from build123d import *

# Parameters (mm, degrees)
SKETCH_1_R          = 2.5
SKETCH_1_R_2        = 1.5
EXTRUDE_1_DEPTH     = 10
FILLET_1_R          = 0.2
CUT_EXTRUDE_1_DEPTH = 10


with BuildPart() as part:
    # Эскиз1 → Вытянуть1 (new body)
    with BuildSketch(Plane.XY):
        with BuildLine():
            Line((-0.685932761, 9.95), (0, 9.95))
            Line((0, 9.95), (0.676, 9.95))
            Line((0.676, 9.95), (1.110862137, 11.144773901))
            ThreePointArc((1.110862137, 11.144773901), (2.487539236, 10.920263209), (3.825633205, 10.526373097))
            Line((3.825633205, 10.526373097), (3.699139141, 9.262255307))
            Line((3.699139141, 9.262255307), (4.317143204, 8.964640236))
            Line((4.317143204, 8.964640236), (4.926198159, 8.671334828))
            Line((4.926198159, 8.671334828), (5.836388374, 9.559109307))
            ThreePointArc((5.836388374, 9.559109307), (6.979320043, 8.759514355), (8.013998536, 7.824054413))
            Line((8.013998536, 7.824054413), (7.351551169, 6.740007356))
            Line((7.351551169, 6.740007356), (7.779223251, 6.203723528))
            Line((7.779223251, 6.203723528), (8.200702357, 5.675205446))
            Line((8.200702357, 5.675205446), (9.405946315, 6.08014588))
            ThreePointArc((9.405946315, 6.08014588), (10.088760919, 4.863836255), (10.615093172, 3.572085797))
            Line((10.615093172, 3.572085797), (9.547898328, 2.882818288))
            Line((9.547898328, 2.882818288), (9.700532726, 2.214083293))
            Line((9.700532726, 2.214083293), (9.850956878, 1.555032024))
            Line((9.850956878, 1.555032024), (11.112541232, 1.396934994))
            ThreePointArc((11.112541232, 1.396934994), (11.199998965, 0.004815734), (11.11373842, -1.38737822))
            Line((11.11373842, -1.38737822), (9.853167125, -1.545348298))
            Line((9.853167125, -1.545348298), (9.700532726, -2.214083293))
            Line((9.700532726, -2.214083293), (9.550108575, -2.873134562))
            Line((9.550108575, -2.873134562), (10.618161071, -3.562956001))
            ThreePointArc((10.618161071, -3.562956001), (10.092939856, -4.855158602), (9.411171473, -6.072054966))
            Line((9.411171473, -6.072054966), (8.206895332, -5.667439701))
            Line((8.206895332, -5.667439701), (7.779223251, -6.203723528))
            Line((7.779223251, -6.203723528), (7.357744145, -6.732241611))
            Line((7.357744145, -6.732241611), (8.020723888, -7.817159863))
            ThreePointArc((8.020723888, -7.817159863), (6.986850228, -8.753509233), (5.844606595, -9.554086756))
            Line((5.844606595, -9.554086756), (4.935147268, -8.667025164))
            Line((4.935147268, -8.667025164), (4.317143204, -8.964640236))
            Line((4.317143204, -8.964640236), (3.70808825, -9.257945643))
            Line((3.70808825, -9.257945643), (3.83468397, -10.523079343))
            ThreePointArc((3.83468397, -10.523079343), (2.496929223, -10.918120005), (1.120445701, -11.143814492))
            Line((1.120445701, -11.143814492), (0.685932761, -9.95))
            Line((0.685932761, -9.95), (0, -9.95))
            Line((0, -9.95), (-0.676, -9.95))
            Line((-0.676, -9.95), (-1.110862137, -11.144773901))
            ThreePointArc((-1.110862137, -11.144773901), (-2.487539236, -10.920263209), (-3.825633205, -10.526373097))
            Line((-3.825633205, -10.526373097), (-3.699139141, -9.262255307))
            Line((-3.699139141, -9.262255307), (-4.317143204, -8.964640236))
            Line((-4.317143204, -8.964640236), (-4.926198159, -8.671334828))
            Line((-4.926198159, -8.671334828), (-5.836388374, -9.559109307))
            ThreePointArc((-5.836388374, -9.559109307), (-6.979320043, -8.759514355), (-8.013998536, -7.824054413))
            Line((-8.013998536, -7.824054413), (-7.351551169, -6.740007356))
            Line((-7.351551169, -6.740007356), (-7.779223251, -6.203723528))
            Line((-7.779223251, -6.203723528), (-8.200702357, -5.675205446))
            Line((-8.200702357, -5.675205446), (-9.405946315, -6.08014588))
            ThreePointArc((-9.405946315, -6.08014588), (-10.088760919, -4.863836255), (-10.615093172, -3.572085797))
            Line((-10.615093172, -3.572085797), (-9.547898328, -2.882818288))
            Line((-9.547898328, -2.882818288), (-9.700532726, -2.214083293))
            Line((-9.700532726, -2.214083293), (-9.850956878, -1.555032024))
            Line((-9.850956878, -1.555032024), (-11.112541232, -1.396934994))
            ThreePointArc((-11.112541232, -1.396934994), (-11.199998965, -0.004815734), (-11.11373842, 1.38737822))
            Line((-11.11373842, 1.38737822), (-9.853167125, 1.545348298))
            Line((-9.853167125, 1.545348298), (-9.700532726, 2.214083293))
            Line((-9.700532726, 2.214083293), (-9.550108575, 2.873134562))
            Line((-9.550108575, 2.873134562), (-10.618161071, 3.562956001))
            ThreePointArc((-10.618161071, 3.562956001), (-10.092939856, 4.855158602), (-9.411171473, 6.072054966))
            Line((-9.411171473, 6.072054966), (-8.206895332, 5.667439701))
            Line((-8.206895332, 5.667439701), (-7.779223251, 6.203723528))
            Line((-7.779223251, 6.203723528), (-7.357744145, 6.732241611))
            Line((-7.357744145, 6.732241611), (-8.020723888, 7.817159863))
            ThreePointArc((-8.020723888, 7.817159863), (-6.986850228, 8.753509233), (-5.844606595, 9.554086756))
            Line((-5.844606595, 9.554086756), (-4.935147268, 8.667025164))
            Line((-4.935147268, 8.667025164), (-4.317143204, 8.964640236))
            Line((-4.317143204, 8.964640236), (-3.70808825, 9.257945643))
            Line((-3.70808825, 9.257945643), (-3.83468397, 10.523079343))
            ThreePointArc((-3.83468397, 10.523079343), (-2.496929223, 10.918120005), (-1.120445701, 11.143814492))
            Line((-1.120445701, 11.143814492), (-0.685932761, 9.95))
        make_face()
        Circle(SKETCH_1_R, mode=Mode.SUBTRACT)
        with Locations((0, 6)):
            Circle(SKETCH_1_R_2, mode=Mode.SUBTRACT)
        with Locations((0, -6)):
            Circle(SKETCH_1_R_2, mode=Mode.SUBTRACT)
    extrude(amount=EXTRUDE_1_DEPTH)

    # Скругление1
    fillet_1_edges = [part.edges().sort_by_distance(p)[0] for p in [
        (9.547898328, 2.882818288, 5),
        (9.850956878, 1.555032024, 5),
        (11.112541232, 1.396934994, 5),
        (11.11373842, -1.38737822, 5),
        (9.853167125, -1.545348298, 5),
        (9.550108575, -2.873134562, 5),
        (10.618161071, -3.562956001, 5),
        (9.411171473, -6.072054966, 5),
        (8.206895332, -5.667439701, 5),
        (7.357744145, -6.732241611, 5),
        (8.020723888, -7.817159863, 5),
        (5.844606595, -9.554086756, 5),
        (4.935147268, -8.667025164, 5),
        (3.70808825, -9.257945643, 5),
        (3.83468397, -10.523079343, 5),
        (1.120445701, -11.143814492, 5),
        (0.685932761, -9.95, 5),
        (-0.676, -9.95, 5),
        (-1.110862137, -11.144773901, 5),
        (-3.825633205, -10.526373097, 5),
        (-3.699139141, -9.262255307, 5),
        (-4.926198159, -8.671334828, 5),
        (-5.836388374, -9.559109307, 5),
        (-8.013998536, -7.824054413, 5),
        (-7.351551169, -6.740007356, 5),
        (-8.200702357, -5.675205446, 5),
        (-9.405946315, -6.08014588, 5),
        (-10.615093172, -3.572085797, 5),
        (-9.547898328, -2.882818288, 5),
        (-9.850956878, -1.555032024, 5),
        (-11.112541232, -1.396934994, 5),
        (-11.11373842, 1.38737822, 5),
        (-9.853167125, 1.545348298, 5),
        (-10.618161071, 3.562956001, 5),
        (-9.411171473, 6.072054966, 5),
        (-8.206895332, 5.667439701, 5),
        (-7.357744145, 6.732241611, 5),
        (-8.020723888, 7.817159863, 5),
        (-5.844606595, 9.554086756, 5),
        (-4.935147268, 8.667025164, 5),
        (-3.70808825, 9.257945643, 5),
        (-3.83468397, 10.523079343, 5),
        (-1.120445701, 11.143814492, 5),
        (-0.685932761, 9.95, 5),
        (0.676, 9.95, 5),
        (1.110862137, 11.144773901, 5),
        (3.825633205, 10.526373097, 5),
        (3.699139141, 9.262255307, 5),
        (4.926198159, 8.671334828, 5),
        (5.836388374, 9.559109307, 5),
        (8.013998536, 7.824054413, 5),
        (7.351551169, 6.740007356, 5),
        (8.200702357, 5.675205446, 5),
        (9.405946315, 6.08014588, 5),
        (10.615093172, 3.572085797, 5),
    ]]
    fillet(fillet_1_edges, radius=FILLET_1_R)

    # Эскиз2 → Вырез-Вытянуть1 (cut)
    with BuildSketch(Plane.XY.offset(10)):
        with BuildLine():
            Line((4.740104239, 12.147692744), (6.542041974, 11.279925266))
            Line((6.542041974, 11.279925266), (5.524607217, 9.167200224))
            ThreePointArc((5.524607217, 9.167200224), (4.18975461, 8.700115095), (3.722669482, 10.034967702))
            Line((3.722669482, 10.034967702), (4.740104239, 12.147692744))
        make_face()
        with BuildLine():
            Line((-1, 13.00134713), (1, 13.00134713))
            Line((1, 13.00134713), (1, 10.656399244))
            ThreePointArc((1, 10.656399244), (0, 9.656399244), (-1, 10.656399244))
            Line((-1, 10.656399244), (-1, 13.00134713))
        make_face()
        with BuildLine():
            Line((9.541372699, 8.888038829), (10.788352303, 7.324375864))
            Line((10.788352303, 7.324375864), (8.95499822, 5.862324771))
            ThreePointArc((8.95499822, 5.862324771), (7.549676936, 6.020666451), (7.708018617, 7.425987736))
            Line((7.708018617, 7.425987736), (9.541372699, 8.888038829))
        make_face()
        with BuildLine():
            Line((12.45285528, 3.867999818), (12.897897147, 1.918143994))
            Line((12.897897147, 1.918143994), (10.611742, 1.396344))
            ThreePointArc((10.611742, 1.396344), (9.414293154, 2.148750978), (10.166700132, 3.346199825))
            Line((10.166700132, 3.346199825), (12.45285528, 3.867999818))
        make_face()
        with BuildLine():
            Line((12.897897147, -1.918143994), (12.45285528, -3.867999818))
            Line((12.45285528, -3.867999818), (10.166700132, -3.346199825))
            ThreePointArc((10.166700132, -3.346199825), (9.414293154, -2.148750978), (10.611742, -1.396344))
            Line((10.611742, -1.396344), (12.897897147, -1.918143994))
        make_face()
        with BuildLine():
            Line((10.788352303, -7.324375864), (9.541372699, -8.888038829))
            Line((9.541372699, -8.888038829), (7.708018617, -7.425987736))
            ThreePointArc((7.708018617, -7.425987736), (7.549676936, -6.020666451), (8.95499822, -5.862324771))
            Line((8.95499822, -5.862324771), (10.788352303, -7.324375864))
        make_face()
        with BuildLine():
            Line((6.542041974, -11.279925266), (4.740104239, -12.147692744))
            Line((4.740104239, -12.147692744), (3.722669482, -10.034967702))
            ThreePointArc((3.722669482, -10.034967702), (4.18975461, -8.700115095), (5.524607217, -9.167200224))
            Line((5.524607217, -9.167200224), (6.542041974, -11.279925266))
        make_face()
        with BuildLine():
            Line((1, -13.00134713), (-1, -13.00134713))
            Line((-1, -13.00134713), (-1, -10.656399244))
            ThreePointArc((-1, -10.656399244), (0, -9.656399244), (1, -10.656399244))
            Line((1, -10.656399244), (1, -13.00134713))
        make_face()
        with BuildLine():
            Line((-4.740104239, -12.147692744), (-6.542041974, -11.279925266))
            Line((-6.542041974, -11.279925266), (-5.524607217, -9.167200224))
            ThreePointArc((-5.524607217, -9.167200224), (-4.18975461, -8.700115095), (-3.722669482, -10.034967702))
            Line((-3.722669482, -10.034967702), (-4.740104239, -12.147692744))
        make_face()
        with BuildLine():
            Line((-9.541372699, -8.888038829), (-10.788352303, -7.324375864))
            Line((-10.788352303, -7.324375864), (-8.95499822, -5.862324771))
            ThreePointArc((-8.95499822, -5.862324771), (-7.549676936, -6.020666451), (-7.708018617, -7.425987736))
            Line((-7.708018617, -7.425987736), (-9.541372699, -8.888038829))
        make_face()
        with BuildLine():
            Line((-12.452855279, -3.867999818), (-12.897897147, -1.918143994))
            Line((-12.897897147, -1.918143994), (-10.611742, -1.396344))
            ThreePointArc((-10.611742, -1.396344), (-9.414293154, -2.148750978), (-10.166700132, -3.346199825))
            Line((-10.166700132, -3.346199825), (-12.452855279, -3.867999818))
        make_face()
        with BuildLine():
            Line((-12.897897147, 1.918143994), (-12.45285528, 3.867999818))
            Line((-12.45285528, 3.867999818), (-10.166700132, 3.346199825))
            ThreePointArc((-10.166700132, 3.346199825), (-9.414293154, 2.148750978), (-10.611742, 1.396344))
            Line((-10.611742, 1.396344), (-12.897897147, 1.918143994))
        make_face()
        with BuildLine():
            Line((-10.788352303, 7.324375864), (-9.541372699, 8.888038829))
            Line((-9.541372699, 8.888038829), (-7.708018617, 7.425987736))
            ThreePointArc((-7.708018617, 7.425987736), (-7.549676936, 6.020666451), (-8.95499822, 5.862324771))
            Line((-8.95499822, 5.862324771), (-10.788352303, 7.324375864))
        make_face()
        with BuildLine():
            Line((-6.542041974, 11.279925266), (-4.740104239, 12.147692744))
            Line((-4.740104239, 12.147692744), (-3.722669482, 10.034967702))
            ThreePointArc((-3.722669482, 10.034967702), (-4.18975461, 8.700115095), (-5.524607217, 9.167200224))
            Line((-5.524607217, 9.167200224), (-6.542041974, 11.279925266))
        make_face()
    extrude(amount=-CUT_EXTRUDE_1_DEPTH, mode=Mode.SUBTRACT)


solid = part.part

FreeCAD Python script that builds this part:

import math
import FreeCAD as App
import Part
import Sketcher
from FreeCAD import Vector
Q = App.Units.Quantity


def edges_at(feature, points):
    """Names of the edges that pass closest to the given points."""
    edges = feature.Shape.Edges
    near = lambda p: min(range(len(edges)), key=lambda i: edges[i].distToShape(Part.Vertex(*p))[0])
    return sorted({f"Edge{near(p) + 1}" for p in points})

doc = App.newDocument("Part")
body = doc.addObject("PartDesign::Body", "Body")

# Sketch on XY plane
sketch1 = doc.addObject("Sketcher::SketchObject", "Sketch")
body.addObject(sketch1)
sketch1.AttachmentSupport = (doc.XY_Plane, [""])
sketch1.MapMode = "FlatFace"
sketch1.addGeometry(Part.LineSegment(Vector(0.676, 9.95, 0), Vector(-0.685933, 9.95, 0)), False)
sketch1.addGeometry(Part.LineSegment(Vector(-0.685933, 9.95, 0), Vector(-1.120446, 11.143814, 0)), False)
sketch1.addGeometry(Part.ArcOfCircle(Part.Circle(Vector(0, 0, 0), Vector(0, 0, 1), 11.2), math.radians(95.741462), math.radians(110.022095)), False)
sketch1.addGeometry(Part.LineSegment(Vector(-3.834684, 10.523079, 0), Vector(-3.708088, 9.257946, 0)), False)
sketch1.addGeometry(Part.LineSegment(Vector(-3.708088, 9.257946, 0), Vector(-4.317143, 8.96464, 0)), False)
sketch1.addGeometry(Part.LineSegment(Vector(-4.317143, 8.96464, 0), Vector(-4.935147, 8.667025, 0)), False)
sketch1.addGeometry(Part.LineSegment(Vector(-4.935147, 8.667025, 0), Vector(-5.844607, 9.554087, 0)), False)
sketch1.addGeometry(Part.ArcOfCircle(Part.Circle(Vector(0, 0, 0), Vector(0, 0, 1), 11.2), math.radians(121.455748), math.radians(135.736381)), False)
sketch1.addGeometry(Part.LineSegment(Vector(-8.020724, 7.81716, 0), Vector(-7.357744, 6.732242, 0)), False)
sketch1.addGeometry(Part.LineSegment(Vector(-7.357744, 6.732242, 0), Vector(-7.779223, 6.203724, 0)), False)
sketch1.addGeometry(Part.LineSegment(Vector(-7.779223, 6.203724, 0), Vector(-8.206895, 5.66744, 0)), False)
sketch1.addGeometry(Part.LineSegment(Vector(-8.206895, 5.66744, 0), Vector(-9.411171, 6.072055, 0)), False)
sketch1.addGeometry(Part.ArcOfCircle(Part.Circle(Vector(0, 0, 0), Vector(0, 0, 1), 11.2), math.radians(147.170034), math.radians(161.450667)), False)
sketch1.addGeometry(Part.LineSegment(Vector(-10.618161, 3.562956, 0), Vector(-9.550109, 2.873135, 0)), False)
sketch1.addGeometry(Part.LineSegment(Vector(-9.550109, 2.873135, 0), Vector(-9.700533, 2.214083, 0)), False)
sketch1.addGeometry(Part.LineSegment(Vector(-9.700533, 2.214083, 0), Vector(-9.853167, 1.545348, 0)), False)
sketch1.addGeometry(Part.LineSegment(Vector(-9.853167, 1.545348, 0), Vector(-11.113738, 1.387378, 0)), False)
sketch1.addGeometry(Part.ArcOfCircle(Part.Circle(Vector(0, 0, 0), Vector(0, 0, 1), 11.2), math.radians(172.884319), math.radians(187.164952)), False)
sketch1.addGeometry(Part.LineSegment(Vector(-11.112541, -1.396935, 0), Vector(-9.850957, -1.555032, 0)), False)
sketch1.addGeometry(Part.LineSegment(Vector(-9.850957, -1.555032, 0), Vector(-9.700533, -2.214083, 0)), False)
sketch1.addGeometry(Part.LineSegment(Vector(-9.700533, -2.214083, 0), Vector(-9.547898, -2.882818, 0)), False)
sketch1.addGeometry(Part.LineSegment(Vector(-9.547898, -2.882818, 0), Vector(-10.615093, -3.572086, 0)), False)
sketch1.addGeometry(Part.ArcOfCircle(Part.Circle(Vector(0, 0, 0), Vector(0, 0, 1), 11.2), math.radians(-161.401395), math.radians(-147.120762)), False)
sketch1.addGeometry(Part.LineSegment(Vector(-9.405946, -6.080146, 0), Vector(-8.200702, -5.675205, 0)), False)
sketch1.addGeometry(Part.LineSegment(Vector(-8.200702, -5.675205, 0), Vector(-7.779223, -6.203724, 0)), False)
sketch1.addGeometry(Part.LineSegment(Vector(-7.779223, -6.203724, 0), Vector(-7.351551, -6.740007, 0)), False)
sketch1.addGeometry(Part.LineSegment(Vector(-7.351551, -6.740007, 0), Vector(-8.013999, -7.824054, 0)), False)
sketch1.addGeometry(Part.ArcOfCircle(Part.Circle(Vector(0, 0, 0), Vector(0, 0, 1), 11.2), math.radians(-135.687109), math.radians(-121.406476)), False)
sketch1.addGeometry(Part.LineSegment(Vector(-5.836388, -9.559109, 0), Vector(-4.926198, -8.671335, 0)), False)
sketch1.addGeometry(Part.LineSegment(Vector(-4.926198, -8.671335, 0), Vector(-4.317143, -8.96464, 0)), False)
sketch1.addGeometry(Part.LineSegment(Vector(-4.317143, -8.96464, 0), Vector(-3.699139, -9.262255, 0)), False)
sketch1.addGeometry(Part.LineSegment(Vector(-3.699139, -9.262255, 0), Vector(-3.825633, -10.526373, 0)), False)
sketch1.addGeometry(Part.ArcOfCircle(Part.Circle(Vector(0, 0, 0), Vector(0, 0, 1), 11.2), math.radians(-109.972824), math.radians(-95.69219)), False)
sketch1.addGeometry(Part.LineSegment(Vector(-1.110862, -11.144774, 0), Vector(-0.676, -9.95, 0)), False)
sketch1.addGeometry(Part.LineSegment(Vector(-0.676, -9.95, 0), Vector(0.685933, -9.95, 0)), False)
sketch1.addGeometry(Part.LineSegment(Vector(0.685933, -9.95, 0), Vector(1.120446, -11.143814, 0)), False)
sketch1.addGeometry(Part.ArcOfCircle(Part.Circle(Vector(0, 0, 0), Vector(0, 0, 1), 11.2), math.radians(-84.258538), math.radians(-69.977905)), False)
sketch1.addGeometry(Part.LineSegment(Vector(3.834684, -10.523079, 0), Vector(3.708088, -9.257946, 0)), False)
sketch1.addGeometry(Part.LineSegment(Vector(3.708088, -9.257946, 0), Vector(4.317143, -8.96464, 0)), False)
sketch1.addGeometry(Part.LineSegment(Vector(4.317143, -8.96464, 0), Vector(4.935147, -8.667025, 0)), False)
sketch1.addGeometry(Part.LineSegment(Vector(4.935147, -8.667025, 0), Vector(5.844607, -9.554087, 0)), False)
sketch1.addGeometry(Part.ArcOfCircle(Part.Circle(Vector(0, 0, 0), Vector(0, 0, 1), 11.2), math.radians(-58.544252), math.radians(-44.263619)), False)
sketch1.addGeometry(Part.LineSegment(Vector(8.020724, -7.81716, 0), Vector(7.357744, -6.732242, 0)), False)
sketch1.addGeometry(Part.LineSegment(Vector(7.357744, -6.732242, 0), Vector(7.779223, -6.203724, 0)), False)
sketch1.addGeometry(Part.LineSegment(Vector(7.779223, -6.203724, 0), Vector(8.206895, -5.66744, 0)), False)
sketch1.addGeometry(Part.LineSegment(Vector(8.206895, -5.66744, 0), Vector(9.411171, -6.072055, 0)), False)
sketch1.addGeometry(Part.ArcOfCircle(Part.Circle(Vector(0, 0, 0), Vector(0, 0, 1), 11.2), math.radians(-32.829966), math.radians(-18.549333)), False)
sketch1.addGeometry(Part.LineSegment(Vector(10.618161, -3.562956, 0), Vector(9.550109, -2.873135, 0)), False)
sketch1.addGeometry(Part.LineSegment(Vector(9.550109, -2.873135, 0), Vector(9.700533, -2.214083, 0)), False)
sketch1.addGeometry(Part.LineSegment(Vector(9.700533, -2.214083, 0), Vector(9.853167, -1.545348, 0)), False)
sketch1.addGeometry(Part.LineSegment(Vector(9.853167, -1.545348, 0), Vector(11.113738, -1.387378, 0)), False)
sketch1.addGeometry(Part.ArcOfCircle(Part.Circle(Vector(0, 0, 0), Vector(0, 0, 1), 11.2), math.radians(-7.115681), math.radians(7.164952)), False)
sketch1.addGeometry(Part.LineSegment(Vector(11.112541, 1.396935, 0), Vector(9.850957, 1.555032, 0)), False)
sketch1.addGeometry(Part.LineSegment(Vector(9.850957, 1.555032, 0), Vector(9.700533, 2.214083, 0)), False)
sketch1.addGeometry(Part.LineSegment(Vector(9.700533, 2.214083, 0), Vector(9.547898, 2.882818, 0)), False)
sketch1.addGeometry(Part.LineSegment(Vector(9.547898, 2.882818, 0), Vector(10.615093, 3.572086, 0)), False)
sketch1.addGeometry(Part.ArcOfCircle(Part.Circle(Vector(0, 0, 0), Vector(0, 0, 1), 11.2), math.radians(18.598605), math.radians(32.879238)), False)
sketch1.addGeometry(Part.LineSegment(Vector(9.405946, 6.080146, 0), Vector(8.200702, 5.675205, 0)), False)
sketch1.addGeometry(Part.LineSegment(Vector(8.200702, 5.675205, 0), Vector(7.779223, 6.203724, 0)), False)
sketch1.addGeometry(Part.LineSegment(Vector(7.779223, 6.203724, 0), Vector(7.351551, 6.740007, 0)), False)
sketch1.addGeometry(Part.LineSegment(Vector(7.351551, 6.740007, 0), Vector(8.013999, 7.824054, 0)), False)
sketch1.addGeometry(Part.ArcOfCircle(Part.Circle(Vector(0, 0, 0), Vector(0, 0, 1), 11.2), math.radians(44.312891), math.radians(58.593524)), False)
sketch1.addGeometry(Part.LineSegment(Vector(5.836388, 9.559109, 0), Vector(4.926198, 8.671335, 0)), False)
sketch1.addGeometry(Part.LineSegment(Vector(4.926198, 8.671335, 0), Vector(4.317143, 8.96464, 0)), False)
sketch1.addGeometry(Part.LineSegment(Vector(4.317143, 8.96464, 0), Vector(3.699139, 9.262255, 0)), False)
sketch1.addGeometry(Part.LineSegment(Vector(3.699139, 9.262255, 0), Vector(3.825633, 10.526373, 0)), False)
sketch1.addGeometry(Part.ArcOfCircle(Part.Circle(Vector(0, 0, 0), Vector(0, 0, 1), 11.2), math.radians(70.027176), math.radians(84.30781)), False)
sketch1.addGeometry(Part.LineSegment(Vector(1.110862, 11.144774, 0), Vector(0.676, 9.95, 0)), False)
sketch1.addGeometry(Part.Circle(Vector(0, -6, 0), Vector(0, 0, 1), 1.5), False)
sketch1.addGeometry(Part.Circle(Vector(0, 0, 0), Vector(0, 0, 1), 2.5), False)
sketch1.addGeometry(Part.Circle(Vector(0, 6, 0), Vector(0, 0, 1), 1.5), False)
sketch1.addConstraint(Sketcher.Constraint("Coincident", 0, 2, 1, 1))
sketch1.addConstraint(Sketcher.Constraint("Coincident", 1, 2, 2, 1))
sketch1.addConstraint(Sketcher.Constraint("Coincident", 2, 2, 3, 1))
sketch1.addConstraint(Sketcher.Constraint("Coincident", 3, 2, 4, 1))
sketch1.addConstraint(Sketcher.Constraint("Coincident", 4, 2, 5, 1))
sketch1.addConstraint(Sketcher.Constraint("Coincident", 5, 2, 6, 1))
sketch1.addConstraint(Sketcher.Constraint("Coincident", 6, 2, 7, 1))
sketch1.addConstraint(Sketcher.Constraint("Coincident", 7, 2, 8, 1))
sketch1.addConstraint(Sketcher.Constraint("Coincident", 8, 2, 9, 1))
sketch1.addConstraint(Sketcher.Constraint("Coincident", 9, 2, 10, 1))
sketch1.addConstraint(Sketcher.Constraint("Coincident", 10, 2, 11, 1))
sketch1.addConstraint(Sketcher.Constraint("Coincident", 11, 2, 12, 1))
sketch1.addConstraint(Sketcher.Constraint("Coincident", 12, 2, 13, 1))
sketch1.addConstraint(Sketcher.Constraint("Coincident", 13, 2, 14, 1))
sketch1.addConstraint(Sketcher.Constraint("Coincident", 14, 2, 15, 1))
sketch1.addConstraint(Sketcher.Constraint("Coincident", 15, 2, 16, 1))
sketch1.addConstraint(Sketcher.Constraint("Coincident", 16, 2, 17, 1))
sketch1.addConstraint(Sketcher.Constraint("Coincident", 17, 2, 18, 1))
sketch1.addConstraint(Sketcher.Constraint("Coincident", 18, 2, 19, 1))
sketch1.addConstraint(Sketcher.Constraint("Coincident", 19, 2, 20, 1))
sketch1.addConstraint(Sketcher.Constraint("Coincident", 20, 2, 21, 1))
sketch1.addConstraint(Sketcher.Constraint("Coincident", 21, 2, 22, 1))
sketch1.addConstraint(Sketcher.Constraint("Coincident", 22, 2, 23, 1))
sketch1.addConstraint(Sketcher.Constraint("Coincident", 23, 2, 24, 1))
sketch1.addConstraint(Sketcher.Constraint("Coincident", 24, 2, 25, 1))
sketch1.addConstraint(Sketcher.Constraint("Coincident", 25, 2, 26, 1))
sketch1.addConstraint(Sketcher.Constraint("Coincident", 26, 2, 27, 1))
sketch1.addConstraint(Sketcher.Constraint("Coincident", 27, 2, 28, 1))
sketch1.addConstraint(Sketcher.Constraint("Coincident", 28, 2, 29, 1))
sketch1.addConstraint(Sketcher.Constraint("Coincident", 29, 2, 30, 1))
sketch1.addConstraint(Sketcher.Constraint("Coincident", 30, 2, 31, 1))
sketch1.addConstraint(Sketcher.Constraint("Coincident", 31, 2, 32, 1))
sketch1.addConstraint(Sketcher.Constraint("Coincident", 32, 2, 33, 1))
sketch1.addConstraint(Sketcher.Constraint("Coincident", 33, 2, 34, 1))
sketch1.addConstraint(Sketcher.Constraint("Coincident", 34, 2, 35, 1))
sketch1.addConstraint(Sketcher.Constraint("Coincident", 35, 2, 36, 1))
sketch1.addConstraint(Sketcher.Constraint("Coincident", 36, 2, 37, 1))
sketch1.addConstraint(Sketcher.Constraint("Coincident", 37, 2, 38, 1))
sketch1.addConstraint(Sketcher.Constraint("Coincident", 38, 2, 39, 1))
sketch1.addConstraint(Sketcher.Constraint("Coincident", 39, 2, 40, 1))
sketch1.addConstraint(Sketcher.Constraint("Coincident", 40, 2, 41, 1))
sketch1.addConstraint(Sketcher.Constraint("Coincident", 41, 2, 42, 1))
sketch1.addConstraint(Sketcher.Constraint("Coincident", 42, 2, 43, 1))
sketch1.addConstraint(Sketcher.Constraint("Coincident", 43, 2, 44, 1))
sketch1.addConstraint(Sketcher.Constraint("Coincident", 44, 2, 45, 1))
sketch1.addConstraint(Sketcher.Constraint("Coincident", 45, 2, 46, 1))
sketch1.addConstraint(Sketcher.Constraint("Coincident", 46, 2, 47, 1))
sketch1.addConstraint(Sketcher.Constraint("Coincident", 47, 2, 48, 1))
sketch1.addConstraint(Sketcher.Constraint("Coincident", 48, 2, 49, 1))
sketch1.addConstraint(Sketcher.Constraint("Coincident", 49, 2, 50, 1))
sketch1.addConstraint(Sketcher.Constraint("Coincident", 50, 2, 51, 1))
sketch1.addConstraint(Sketcher.Constraint("Coincident", 51, 2, 52, 1))
sketch1.addConstraint(Sketcher.Constraint("Coincident", 52, 2, 53, 1))
sketch1.addConstraint(Sketcher.Constraint("Coincident", 53, 2, 54, 1))
sketch1.addConstraint(Sketcher.Constraint("Coincident", 54, 2, 55, 1))
sketch1.addConstraint(Sketcher.Constraint("Coincident", 55, 2, 56, 1))
sketch1.addConstraint(Sketcher.Constraint("Coincident", 56, 2, 57, 1))
sketch1.addConstraint(Sketcher.Constraint("Coincident", 57, 2, 58, 1))
sketch1.addConstraint(Sketcher.Constraint("Coincident", 58, 2, 59, 1))
sketch1.addConstraint(Sketcher.Constraint("Coincident", 59, 2, 60, 1))
sketch1.addConstraint(Sketcher.Constraint("Coincident", 60, 2, 61, 1))
sketch1.addConstraint(Sketcher.Constraint("Coincident", 61, 2, 62, 1))
sketch1.addConstraint(Sketcher.Constraint("Coincident", 62, 2, 63, 1))
sketch1.addConstraint(Sketcher.Constraint("Coincident", 63, 2, 64, 1))
sketch1.addConstraint(Sketcher.Constraint("Coincident", 64, 2, 65, 1))
sketch1.addConstraint(Sketcher.Constraint("Coincident", 65, 2, 66, 1))
sketch1.addConstraint(Sketcher.Constraint("Coincident", 66, 2, 67, 1))
sketch1.addConstraint(Sketcher.Constraint("Coincident", 67, 2, 0, 1))
sketch1.addConstraint(Sketcher.Constraint("Horizontal", 0))
sketch1.addConstraint(Sketcher.Constraint("Horizontal", 34))
sketch1.addConstraint(Sketcher.Constraint("Coincident", 2, 3, -1, 1))
sketch1.addConstraint(Sketcher.Constraint("Coincident", 7, 3, -1, 1))
sketch1.addConstraint(Sketcher.Constraint("Coincident", 12, 3, -1, 1))
sketch1.addConstraint(Sketcher.Constraint("Coincident", 17, 3, -1, 1))
sketch1.addConstraint(Sketcher.Constraint("Coincident", 22, 3, -1, 1))
sketch1.addConstraint(Sketcher.Constraint("Coincident", 27, 3, -1, 1))
sketch1.addConstraint(Sketcher.Constraint("Coincident", 32, 3, -1, 1))
sketch1.addConstraint(Sketcher.Constraint("Coincident", 36, 3, -1, 1))
sketch1.addConstraint(Sketcher.Constraint("Coincident", 41, 3, -1, 1))
sketch1.addConstraint(Sketcher.Constraint("Coincident", 46, 3, -1, 1))
sketch1.addConstraint(Sketcher.Constraint("Coincident", 51, 3, -1, 1))
sketch1.addConstraint(Sketcher.Constraint("Coincident", 56, 3, -1, 1))
sketch1.addConstraint(Sketcher.Constraint("Coincident", 61, 3, -1, 1))
sketch1.addConstraint(Sketcher.Constraint("Coincident", 66, 3, -1, 1))
sketch1.addConstraint(Sketcher.Constraint("Coincident", 69, 3, -1, 1))
sketch1.addConstraint(Sketcher.Constraint("Equal", 2, 7))
sketch1.addConstraint(Sketcher.Constraint("Equal", 7, 12))
sketch1.addConstraint(Sketcher.Constraint("Equal", 12, 17))
sketch1.addConstraint(Sketcher.Constraint("Equal", 17, 22))
sketch1.addConstraint(Sketcher.Constraint("Equal", 22, 27))
sketch1.addConstraint(Sketcher.Constraint("Equal", 27, 32))
sketch1.addConstraint(Sketcher.Constraint("Equal", 32, 36))
sketch1.addConstraint(Sketcher.Constraint("Equal", 36, 41))
sketch1.addConstraint(Sketcher.Constraint("Equal", 41, 46))
sketch1.addConstraint(Sketcher.Constraint("Equal", 46, 51))
sketch1.addConstraint(Sketcher.Constraint("Equal", 51, 56))
sketch1.addConstraint(Sketcher.Constraint("Equal", 56, 61))
sketch1.addConstraint(Sketcher.Constraint("Equal", 61, 66))
sketch1.addConstraint(Sketcher.Constraint("Equal", 68, 70))
sketch1.addConstraint(Sketcher.Constraint("Symmetric", 68, 3, 70, 3, -1, 1))
sketch1.addConstraint(Sketcher.Constraint("Symmetric", 0, 2, 34, 2, -1, 1))
sketch1.addConstraint(Sketcher.Constraint("Symmetric", 3, 2, 37, 2, -1, 1))
sketch1.addConstraint(Sketcher.Constraint("Symmetric", 4, 2, 38, 2, -1, 1))
sketch1.addConstraint(Sketcher.Constraint("Symmetric", 5, 2, 39, 2, -1, 1))
sketch1.addConstraint(Sketcher.Constraint("Symmetric", 8, 2, 42, 2, -1, 1))
sketch1.addConstraint(Sketcher.Constraint("Symmetric", 9, 2, 43, 2, -1, 1))
sketch1.addConstraint(Sketcher.Constraint("Symmetric", 10, 2, 44, 2, -1, 1))
sketch1.addConstraint(Sketcher.Constraint("Symmetric", 13, 2, 47, 2, -1, 1))
sketch1.addConstraint(Sketcher.Constraint("Symmetric", 14, 2, 48, 2, -1, 1))
sketch1.addConstraint(Sketcher.Constraint("Symmetric", 15, 2, 49, 2, -1, 1))
sketch1.addConstraint(Sketcher.Constraint("Symmetric", 18, 2, 52, 2, -1, 1))
sketch1.addConstraint(Sketcher.Constraint("Symmetric", 19, 2, 53, 2, -1, 1))
sketch1.addConstraint(Sketcher.Constraint("Symmetric", 20, 2, 54, 2, -1, 1))
sketch1.addConstraint(Sketcher.Constraint("Symmetric", 23, 2, 57, 2, -1, 1))
sketch1.addConstraint(Sketcher.Constraint("Symmetric", 24, 2, 58, 2, -1, 1))
sketch1.addConstraint(Sketcher.Constraint("Symmetric", 25, 2, 59, 2, -1, 1))
sketch1.addConstraint(Sketcher.Constraint("Symmetric", 28, 2, 62, 2, -1, 1))
sketch1.addConstraint(Sketcher.Constraint("Symmetric", 29, 2, 63, 2, -1, 1))
sketch1.addConstraint(Sketcher.Constraint("Symmetric", 30, 2, 64, 2, -1, 1))
sketch1.addConstraint(Sketcher.Constraint("Symmetric", 29, 2, 38, 2, -2))
sketch1.addConstraint(Sketcher.Constraint("Symmetric", 24, 2, 43, 2, -2))
sketch1.addConstraint(Sketcher.Constraint("Symmetric", 19, 2, 48, 2, -2))
sketch1.addConstraint(Sketcher.Constraint("PointOnObject", 68, 3, -2))
sketch1.addConstraint(Sketcher.Constraint("Parallel", 4, 5))
sketch1.addConstraint(Sketcher.Constraint("Parallel", 9, 10))
sketch1.addConstraint(Sketcher.Constraint("Parallel", 14, 15))
sketch1.addConstraint(Sketcher.Constraint("Parallel", 19, 20))
sketch1.addConstraint(Sketcher.Constraint("Parallel", 24, 25))
sketch1.addConstraint(Sketcher.Constraint("Parallel", 29, 30))
sketch1.addConstraint(Sketcher.Constraint("Parallel", 1, 35))
sketch1.addConstraint(Sketcher.Constraint("Parallel", 3, 37))
sketch1.addConstraint(Sketcher.Constraint("Parallel", 6, 40))
sketch1.addConstraint(Sketcher.Constraint("Parallel", 8, 42))
sketch1.addConstraint(Sketcher.Constraint("Parallel", 11, 45))
sketch1.addConstraint(Sketcher.Constraint("Parallel", 13, 47))
sketch1.addConstraint(Sketcher.Constraint("Parallel", 16, 50))
sketch1.addConstraint(Sketcher.Constraint("Parallel", 18, 52))
sketch1.addConstraint(Sketcher.Constraint("Parallel", 21, 55))
sketch1.addConstraint(Sketcher.Constraint("Parallel", 23, 57))
sketch1.addConstraint(Sketcher.Constraint("Parallel", 26, 60))
sketch1.addConstraint(Sketcher.Constraint("Parallel", 28, 62))
sketch1.addConstraint(Sketcher.Constraint("Parallel", 31, 65))
sketch1.addConstraint(Sketcher.Constraint("Parallel", 33, 67))
sketch1.addConstraint(Sketcher.Constraint("Equal", 0, 34))
sketch1.addConstraint(Sketcher.Constraint("Equal", 1, 6))
sketch1.addConstraint(Sketcher.Constraint("Equal", 3, 8))
sketch1.addConstraint(Sketcher.Constraint("Equal", 4, 9))
sketch1.addConstraint(Sketcher.Constraint("Equal", 5, 10))
sketch1.addConstraint(Sketcher.Constraint("Equal", 6, 11))
sketch1.addConstraint(Sketcher.Constraint("Equal", 8, 13))
sketch1.addConstraint(Sketcher.Constraint("Equal", 9, 14))
sketch1.addConstraint(Sketcher.Constraint("Equal", 10, 15))
sketch1.addConstraint(Sketcher.Constraint("Equal", 11, 16))
sketch1.addConstraint(Sketcher.Constraint("Equal", 13, 18))
sketch1.addConstraint(Sketcher.Constraint("Equal", 14, 19))
sketch1.addConstraint(Sketcher.Constraint("Equal", 15, 20))
sketch1.addConstraint(Sketcher.Constraint("Equal", 16, 21))
sketch1.addConstraint(Sketcher.Constraint("Equal", 18, 23))
sketch1.addConstraint(Sketcher.Constraint("Equal", 19, 24))
sketch1.addConstraint(Sketcher.Constraint("Equal", 20, 25))
sketch1.addConstraint(Sketcher.Constraint("Equal", 21, 26))
sketch1.addConstraint(Sketcher.Constraint("Equal", 23, 28))
sketch1.addConstraint(Sketcher.Constraint("Equal", 24, 29))
sketch1.addConstraint(Sketcher.Constraint("Equal", 25, 30))
sketch1.addConstraint(Sketcher.Constraint("Equal", 26, 31))
sketch1.addConstraint(Sketcher.Constraint("Equal", 28, 33))
sketch1.addConstraint(Sketcher.Constraint("Diameter", 68, 3.0))
sketch1.addConstraint(Sketcher.Constraint("Diameter", 69, 5.0))
sketch1.addConstraint(Sketcher.Constraint("Radius", 2, 11.2))
sketch1.addConstraint(Sketcher.Constraint("Angle", 1, Q("110 deg")))
sketch1.addConstraint(Sketcher.Constraint("Angle", 33, Q("70 deg")))
sketch1.addConstraint(Sketcher.Constraint("DistanceY", 68, 3, -1, 1, 6.0))
sketch1.addConstraint(Sketcher.Constraint("DistanceY", -1, 1, 0, 2, 9.95))
sketch1.addConstraint(Sketcher.Constraint("Distance", 4, 0.676))
sketch1.addConstraint(Sketcher.Constraint("DistanceX", 26, 2, -1, 1, 8.013999))
sketch1.addConstraint(Sketcher.Constraint("DistanceX", 33, 2, -1, 1, 0.676))
sketch1.addConstraint(Sketcher.Constraint("DistanceX", 20, 2, -1, 1, 9.547898))
sketch1.addConstraint(Sketcher.Constraint("DistanceX", 28, 2, -1, 1, 4.926198))
sketch1.addConstraint(Sketcher.Constraint("Distance", 1, 1.270431))
sketch1.addConstraint(Sketcher.Constraint("DistanceY", -1, 1, 2, 2, 10.523079))
sketch1.addConstraint(Sketcher.Constraint("DistanceX", 3, 2, -1, 1, 3.708088))
sketch1.addConstraint(Sketcher.Constraint("DistanceY", -1, 1, 4, 2, 8.96464))
sketch1.addConstraint(Sketcher.Constraint("DistanceY", -1, 1, 7, 2, 7.81716))
sketch1.addConstraint(Sketcher.Constraint("DistanceY", -1, 1, 8, 2, 6.732242))
sketch1.addConstraint(Sketcher.Constraint("DistanceY", -1, 1, 10, 2, 5.66744))
sketch1.addConstraint(Sketcher.Constraint("DistanceX", 11, 2, -1, 1, 9.411171))
sketch1.addConstraint(Sketcher.Constraint("DistanceX", 12, 2, -1, 1, 10.618161))
sketch1.addConstraint(Sketcher.Constraint("DistanceX", 13, 2, -1, 1, 9.550109))
sketch1.addConstraint(Sketcher.Constraint("DistanceY", -1, 1, 15, 2, 1.545348))
pad1 = doc.addObject("PartDesign::Pad", "Pad")
body.addObject(pad1)
pad1.Profile = sketch1
pad1.Length = 10
doc.recompute()

fillet = doc.addObject("PartDesign::Fillet", "Fillet")
body.addObject(fillet)
fillet.Base = (pad1, edges_at(pad1, [
    (9.548, 2.883, 5),
    (9.851, 1.555, 5),
    (11.113, 1.397, 5),
    (11.114, -1.387, 5),
    (9.853, -1.545, 5),
    (9.55, -2.873, 5),
    (10.618, -3.563, 5),
    (9.411, -6.072, 5),
    (8.207, -5.667, 5),
    (7.358, -6.732, 5),
    (8.021, -7.817, 5),
    (5.845, -9.554, 5),
    (4.935, -8.667, 5),
    (3.708, -9.258, 5),
    (3.835, -10.523, 5),
    (1.12, -11.144, 5),
    (0.686, -9.95, 5),
    (-0.676, -9.95, 5),
    (-1.111, -11.145, 5),
    (-3.826, -10.526, 5),
    (-3.699, -9.262, 5),
    (-4.926, -8.671, 5),
    (-5.836, -9.559, 5),
    (-8.014, -7.824, 5),
    (-7.352, -6.74, 5),
    (-8.201, -5.675, 5),
    (-9.406, -6.08, 5),
    (-10.615, -3.572, 5),
    (-9.548, -2.883, 5),
    (-9.851, -1.555, 5),
    (-11.113, -1.397, 5),
    (-11.114, 1.387, 5),
    (-9.853, 1.545, 5),
    (-10.618, 3.563, 5),
    (-9.411, 6.072, 5),
    (-8.207, 5.667, 5),
    (-7.358, 6.732, 5),
    (-8.021, 7.817, 5),
    (-5.845, 9.554, 5),
    (-4.935, 8.667, 5),
    (-3.708, 9.258, 5),
    (-3.835, 10.523, 5),
    (-1.12, 11.144, 5),
    (-0.686, 9.95, 5),
    (0.676, 9.95, 5),
    (1.111, 11.145, 5),
    (3.826, 10.526, 5),
    (3.699, 9.262, 5),
    (4.926, 8.671, 5),
    (5.836, 9.559, 5),
    (8.014, 7.824, 5),
    (7.352, 6.74, 5),
    (8.201, 5.675, 5),
    (9.406, 6.08, 5),
    (10.615, 3.572, 5),
]))
fillet.Radius = 0.2

# Sketch on XY plane
sketch2 = doc.addObject("Sketcher::SketchObject", "Sketch001")
body.addObject(sketch2)
sketch2.AttachmentSupport = (doc.XY_Plane, [""])
sketch2.MapMode = "FlatFace"
sketch2.AttachmentOffset = App.Placement(Vector(0, 0, 10), App.Rotation())
sketch2.addGeometry(Part.LineSegment(Vector(6.542042, 11.279925, 0), Vector(4.740104, 12.147693, 0)), False)
sketch2.addGeometry(Part.LineSegment(Vector(4.740104, 12.147693, 0), Vector(3.722669, 10.034968, 0)), False)
sketch2.addGeometry(Part.ArcOfCircle(Part.Circle(Vector(4.623638, 9.601084, 0), Vector(0, 0, 1), 1), math.radians(154.285714), math.radians(334.285714)), False)
sketch2.addGeometry(Part.LineSegment(Vector(5.524607, 9.1672, 0), Vector(6.542042, 11.279925, 0)), False)
sketch2.addGeometry(Part.LineSegment(Vector(1, 13.001347, 0), Vector(-1, 13.001347, 0)), False)
sketch2.addGeometry(Part.LineSegment(Vector(-1, 13.001347, 0), Vector(-1, 10.656399, 0)), False)
sketch2.addGeometry(Part.ArcOfCircle(Part.Circle(Vector(0, 10.656399, 0), Vector(0, 0, 1), 1), math.radians(180), math.radians(360)), False)
sketch2.addGeometry(Part.LineSegment(Vector(1, 10.656399, 0), Vector(1, 13.001347, 0)), False)
sketch2.addGeometry(Part.LineSegment(Vector(10.788352, 7.324376, 0), Vector(9.541373, 8.888039, 0)), False)
sketch2.addGeometry(Part.LineSegment(Vector(9.541373, 8.888039, 0), Vector(7.708019, 7.425988, 0)), False)
sketch2.addGeometry(Part.ArcOfCircle(Part.Circle(Vector(8.331508, 6.644156, 0), Vector(0, 0, 1), 1), math.radians(128.571429), math.radians(308.571429)), False)
sketch2.addGeometry(Part.LineSegment(Vector(8.954998, 5.862325, 0), Vector(10.788352, 7.324376, 0)), False)
sketch2.addGeometry(Part.LineSegment(Vector(12.897897, 1.918144, 0), Vector(12.452855, 3.868, 0)), False)
sketch2.addGeometry(Part.LineSegment(Vector(12.452855, 3.868, 0), Vector(10.1667, 3.3462, 0)), False)
sketch2.addGeometry(Part.ArcOfCircle(Part.Circle(Vector(10.389221, 2.371272, 0), Vector(0, 0, 1), 1), math.radians(102.857143), math.radians(282.857143)), False)
sketch2.addGeometry(Part.LineSegment(Vector(10.611742, 1.396344, 0), Vector(12.897897, 1.918144, 0)), False)
sketch2.addGeometry(Part.LineSegment(Vector(12.452855, -3.868, 0), Vector(12.897897, -1.918144, 0)), False)
sketch2.addGeometry(Part.LineSegment(Vector(12.897897, -1.918144, 0), Vector(10.611742, -1.396344, 0)), False)
sketch2.addGeometry(Part.ArcOfCircle(Part.Circle(Vector(10.389221, -2.371272, 0), Vector(0, 0, 1), 1), math.radians(77.142857), math.radians(257.142857)), False)
sketch2.addGeometry(Part.LineSegment(Vector(10.1667, -3.3462, 0), Vector(12.452855, -3.868, 0)), False)
sketch2.addGeometry(Part.LineSegment(Vector(9.541373, -8.888039, 0), Vector(10.788352, -7.324376, 0)), False)
sketch2.addGeometry(Part.LineSegment(Vector(10.788352, -7.324376, 0), Vector(8.954998, -5.862325, 0)), False)
sketch2.addGeometry(Part.ArcOfCircle(Part.Circle(Vector(8.331508, -6.644156, 0), Vector(0, 0, 1), 1), math.radians(51.428571), math.radians(231.428571)), False)
sketch2.addGeometry(Part.LineSegment(Vector(7.708019, -7.425988, 0), Vector(9.541373, -8.888039, 0)), False)
sketch2.addGeometry(Part.LineSegment(Vector(4.740104, -12.147693, 0), Vector(6.542042, -11.279925, 0)), False)
sketch2.addGeometry(Part.LineSegment(Vector(6.542042, -11.279925, 0), Vector(5.524607, -9.1672, 0)), False)
sketch2.addGeometry(Part.ArcOfCircle(Part.Circle(Vector(4.623638, -9.601084, 0), Vector(0, 0, 1), 1), math.radians(25.714286), math.radians(205.714286)), False)
sketch2.addGeometry(Part.LineSegment(Vector(3.722669, -10.034968, 0), Vector(4.740104, -12.147693, 0)), False)
sketch2.addGeometry(Part.LineSegment(Vector(-1, -13.001347, 0), Vector(1, -13.001347, 0)), False)
sketch2.addGeometry(Part.LineSegment(Vector(1, -13.001347, 0), Vector(1, -10.656399, 0)), False)
sketch2.addGeometry(Part.ArcOfCircle(Part.Circle(Vector(0, -10.656399, 0), Vector(0, 0, 1), 1), math.radians(0), math.radians(180)), False)
sketch2.addGeometry(Part.LineSegment(Vector(-1, -10.656399, 0), Vector(-1, -13.001347, 0)), False)
sketch2.addGeometry(Part.LineSegment(Vector(-6.542042, -11.279925, 0), Vector(-4.740104, -12.147693, 0)), False)
sketch2.addGeometry(Part.LineSegment(Vector(-4.740104, -12.147693, 0), Vector(-3.722669, -10.034968, 0)), False)
sketch2.addGeometry(Part.ArcOfCircle(Part.Circle(Vector(-4.623638, -9.601084, 0), Vector(0, 0, 1), 1), math.radians(-25.714286), math.radians(154.285714)), False)
sketch2.addGeometry(Part.LineSegment(Vector(-5.524607, -9.1672, 0), Vector(-6.542042, -11.279925, 0)), False)
sketch2.addGeometry(Part.LineSegment(Vector(-10.788352, -7.324376, 0), Vector(-9.541373, -8.888039, 0)), False)
sketch2.addGeometry(Part.LineSegment(Vector(-9.541373, -8.888039, 0), Vector(-7.708019, -7.425988, 0)), False)
sketch2.addGeometry(Part.ArcOfCircle(Part.Circle(Vector(-8.331508, -6.644156, 0), Vector(0, 0, 1), 1), math.radians(-51.428571), math.radians(128.571429)), False)
sketch2.addGeometry(Part.LineSegment(Vector(-8.954998, -5.862325, 0), Vector(-10.788352, -7.324376, 0)), False)
sketch2.addGeometry(Part.LineSegment(Vector(-12.897897, -1.918144, 0), Vector(-12.452855, -3.868, 0)), False)
sketch2.addGeometry(Part.LineSegment(Vector(-12.452855, -3.868, 0), Vector(-10.1667, -3.3462, 0)), False)
sketch2.addGeometry(Part.ArcOfCircle(Part.Circle(Vector(-10.389221, -2.371272, 0), Vector(0, 0, 1), 1), math.radians(-77.142857), math.radians(102.857143)), False)
sketch2.addGeometry(Part.LineSegment(Vector(-10.611742, -1.396344, 0), Vector(-12.897897, -1.918144, 0)), False)
sketch2.addGeometry(Part.LineSegment(Vector(-12.452855, 3.868, 0), Vector(-12.897897, 1.918144, 0)), False)
sketch2.addGeometry(Part.LineSegment(Vector(-12.897897, 1.918144, 0), Vector(-10.611742, 1.396344, 0)), False)
sketch2.addGeometry(Part.ArcOfCircle(Part.Circle(Vector(-10.389221, 2.371272, 0), Vector(0, 0, 1), 1), math.radians(-102.857143), math.radians(77.142857)), False)
sketch2.addGeometry(Part.LineSegment(Vector(-10.1667, 3.3462, 0), Vector(-12.452855, 3.868, 0)), False)
sketch2.addGeometry(Part.LineSegment(Vector(-9.541373, 8.888039, 0), Vector(-10.788352, 7.324376, 0)), False)
sketch2.addGeometry(Part.LineSegment(Vector(-10.788352, 7.324376, 0), Vector(-8.954998, 5.862325, 0)), False)
sketch2.addGeometry(Part.ArcOfCircle(Part.Circle(Vector(-8.331508, 6.644156, 0), Vector(0, 0, 1), 1), math.radians(-128.571429), math.radians(51.428571)), False)
sketch2.addGeometry(Part.LineSegment(Vector(-7.708019, 7.425988, 0), Vector(-9.541373, 8.888039, 0)), False)
sketch2.addGeometry(Part.LineSegment(Vector(-4.740104, 12.147693, 0), Vector(-6.542042, 11.279925, 0)), False)
sketch2.addGeometry(Part.LineSegment(Vector(-6.542042, 11.279925, 0), Vector(-5.524607, 9.1672, 0)), False)
sketch2.addGeometry(Part.ArcOfCircle(Part.Circle(Vector(-4.623638, 9.601084, 0), Vector(0, 0, 1), 1), math.radians(-154.285714), math.radians(25.714286)), False)
sketch2.addGeometry(Part.LineSegment(Vector(-3.722669, 10.034968, 0), Vector(-4.740104, 12.147693, 0)), False)
sketch2.addConstraint(Sketcher.Constraint("Coincident", 0, 2, 1, 1))
sketch2.addConstraint(Sketcher.Constraint("Tangent", 1, 2, 2, 1))
sketch2.addConstraint(Sketcher.Constraint("Tangent", 2, 2, 3, 1))
sketch2.addConstraint(Sketcher.Constraint("Coincident", 3, 2, 0, 1))
sketch2.addConstraint(Sketcher.Constraint("Coincident", 4, 2, 5, 1))
sketch2.addConstraint(Sketcher.Constraint("Tangent", 5, 2, 6, 1))
sketch2.addConstraint(Sketcher.Constraint("Tangent", 6, 2, 7, 1))
sketch2.addConstraint(Sketcher.Constraint("Coincident", 7, 2, 4, 1))
sketch2.addConstraint(Sketcher.Constraint("Coincident", 8, 2, 9, 1))
sketch2.addConstraint(Sketcher.Constraint("Tangent", 9, 2, 10, 1))
sketch2.addConstraint(Sketcher.Constraint("Tangent", 10, 2, 11, 1))
sketch2.addConstraint(Sketcher.Constraint("Coincident", 11, 2, 8, 1))
sketch2.addConstraint(Sketcher.Constraint("Coincident", 12, 2, 13, 1))
sketch2.addConstraint(Sketcher.Constraint("Tangent", 13, 2, 14, 1))
sketch2.addConstraint(Sketcher.Constraint("Tangent", 14, 2, 15, 1))
sketch2.addConstraint(Sketcher.Constraint("Coincident", 15, 2, 12, 1))
sketch2.addConstraint(Sketcher.Constraint("Coincident", 16, 2, 17, 1))
sketch2.addConstraint(Sketcher.Constraint("Tangent", 17, 2, 18, 1))
sketch2.addConstraint(Sketcher.Constraint("Tangent", 18, 2, 19, 1))
sketch2.addConstraint(Sketcher.Constraint("Coincident", 19, 2, 16, 1))
sketch2.addConstraint(Sketcher.Constraint("Coincident", 20, 2, 21, 1))
sketch2.addConstraint(Sketcher.Constraint("Tangent", 21, 2, 22, 1))
sketch2.addConstraint(Sketcher.Constraint("Tangent", 22, 2, 23, 1))
sketch2.addConstraint(Sketcher.Constraint("Coincident", 23, 2, 20, 1))
sketch2.addConstraint(Sketcher.Constraint("Coincident", 24, 2, 25, 1))
sketch2.addConstraint(Sketcher.Constraint("Tangent", 25, 2, 26, 1))
sketch2.addConstraint(Sketcher.Constraint("Tangent", 26, 2, 27, 1))
sketch2.addConstraint(Sketcher.Constraint("Coincident", 27, 2, 24, 1))
sketch2.addConstraint(Sketcher.Constraint("Coincident", 28, 2, 29, 1))
sketch2.addConstraint(Sketcher.Constraint("Tangent", 29, 2, 30, 1))
sketch2.addConstraint(Sketcher.Constraint("Tangent", 30, 2, 31, 1))
sketch2.addConstraint(Sketcher.Constraint("Coincident", 31, 2, 28, 1))
sketch2.addConstraint(Sketcher.Constraint("Coincident", 32, 2, 33, 1))
sketch2.addConstraint(Sketcher.Constraint("Tangent", 33, 2, 34, 1))
sketch2.addConstraint(Sketcher.Constraint("Tangent", 34, 2, 35, 1))
sketch2.addConstraint(Sketcher.Constraint("Coincident", 35, 2, 32, 1))
sketch2.addConstraint(Sketcher.Constraint("Coincident", 36, 2, 37, 1))
sketch2.addConstraint(Sketcher.Constraint("Tangent", 37, 2, 38, 1))
sketch2.addConstraint(Sketcher.Constraint("Tangent", 38, 2, 39, 1))
sketch2.addConstraint(Sketcher.Constraint("Coincident", 39, 2, 36, 1))
sketch2.addConstraint(Sketcher.Constraint("Coincident", 40, 2, 41, 1))
sketch2.addConstraint(Sketcher.Constraint("Tangent", 41, 2, 42, 1))
sketch2.addConstraint(Sketcher.Constraint("Tangent", 42, 2, 43, 1))
sketch2.addConstraint(Sketcher.Constraint("Coincident", 43, 2, 40, 1))
sketch2.addConstraint(Sketcher.Constraint("Coincident", 44, 2, 45, 1))
sketch2.addConstraint(Sketcher.Constraint("Tangent", 45, 2, 46, 1))
sketch2.addConstraint(Sketcher.Constraint("Tangent", 46, 2, 47, 1))
sketch2.addConstraint(Sketcher.Constraint("Coincident", 47, 2, 44, 1))
sketch2.addConstraint(Sketcher.Constraint("Coincident", 48, 2, 49, 1))
sketch2.addConstraint(Sketcher.Constraint("Tangent", 49, 2, 50, 1))
sketch2.addConstraint(Sketcher.Constraint("Tangent", 50, 2, 51, 1))
sketch2.addConstraint(Sketcher.Constraint("Coincident", 51, 2, 48, 1))
sketch2.addConstraint(Sketcher.Constraint("Coincident", 52, 2, 53, 1))
sketch2.addConstraint(Sketcher.Constraint("Tangent", 53, 2, 54, 1))
sketch2.addConstraint(Sketcher.Constraint("Tangent", 54, 2, 55, 1))
sketch2.addConstraint(Sketcher.Constraint("Coincident", 55, 2, 52, 1))
sketch2.addConstraint(Sketcher.Constraint("Horizontal", 4))
sketch2.addConstraint(Sketcher.Constraint("Vertical", 5))
sketch2.addConstraint(Sketcher.Constraint("Vertical", 7))
sketch2.addConstraint(Sketcher.Constraint("Horizontal", 28))
sketch2.addConstraint(Sketcher.Constraint("Vertical", 29))
sketch2.addConstraint(Sketcher.Constraint("Vertical", 31))
sketch2.addConstraint(Sketcher.Constraint("Equal", 2, 6))
sketch2.addConstraint(Sketcher.Constraint("Equal", 6, 10))
sketch2.addConstraint(Sketcher.Constraint("Equal", 10, 14))
sketch2.addConstraint(Sketcher.Constraint("Equal", 14, 18))
sketch2.addConstraint(Sketcher.Constraint("Equal", 18, 22))
sketch2.addConstraint(Sketcher.Constraint("Equal", 22, 26))
sketch2.addConstraint(Sketcher.Constraint("Equal", 26, 30))
sketch2.addConstraint(Sketcher.Constraint("Equal", 30, 34))
sketch2.addConstraint(Sketcher.Constraint("Equal", 34, 38))
sketch2.addConstraint(Sketcher.Constraint("Equal", 38, 42))
sketch2.addConstraint(Sketcher.Constraint("Equal", 42, 46))
sketch2.addConstraint(Sketcher.Constraint("Equal", 46, 50))
sketch2.addConstraint(Sketcher.Constraint("Equal", 50, 54))
sketch2.addConstraint(Sketcher.Constraint("Symmetric", 6, 3, 30, 3, -1, 1))
sketch2.addConstraint(Sketcher.Constraint("Symmetric", 2, 3, 34, 3, -1, 1))
sketch2.addConstraint(Sketcher.Constraint("Symmetric", 10, 3, 38, 3, -1, 1))
sketch2.addConstraint(Sketcher.Constraint("Symmetric", 14, 3, 42, 3, -1, 1))
sketch2.addConstraint(Sketcher.Constraint("Symmetric", 18, 3, 46, 3, -1, 1))
sketch2.addConstraint(Sketcher.Constraint("Symmetric", 22, 3, 50, 3, -1, 1))
sketch2.addConstraint(Sketcher.Constraint("Symmetric", 26, 3, 54, 3, -1, 1))
sketch2.addConstraint(Sketcher.Constraint("Symmetric", 0, 2, 32, 2, -1, 1))
sketch2.addConstraint(Sketcher.Constraint("Symmetric", 3, 2, 35, 2, -1, 1))
sketch2.addConstraint(Sketcher.Constraint("Symmetric", 8, 2, 36, 2, -1, 1))
sketch2.addConstraint(Sketcher.Constraint("Symmetric", 11, 2, 39, 2, -1, 1))
sketch2.addConstraint(Sketcher.Constraint("Symmetric", 12, 2, 40, 2, -1, 1))
sketch2.addConstraint(Sketcher.Constraint("Symmetric", 15, 2, 43, 2, -1, 1))
sketch2.addConstraint(Sketcher.Constraint("Symmetric", 16, 2, 44, 2, -1, 1))
sketch2.addConstraint(Sketcher.Constraint("Symmetric", 19, 2, 47, 2, -1, 1))
sketch2.addConstraint(Sketcher.Constraint("Symmetric", 20, 2, 48, 2, -1, 1))
sketch2.addConstraint(Sketcher.Constraint("Symmetric", 23, 2, 51, 2, -1, 1))
sketch2.addConstraint(Sketcher.Constraint("Symmetric", 24, 2, 52, 2, -1, 1))
sketch2.addConstraint(Sketcher.Constraint("Symmetric", 27, 2, 55, 2, -1, 1))
sketch2.addConstraint(Sketcher.Constraint("Symmetric", 26, 3, 34, 3, -2))
sketch2.addConstraint(Sketcher.Constraint("Symmetric", 22, 3, 38, 3, -2))
sketch2.addConstraint(Sketcher.Constraint("Symmetric", 18, 3, 42, 3, -2))
sketch2.addConstraint(Sketcher.Constraint("Symmetric", 27, 2, 32, 2, -2))
sketch2.addConstraint(Sketcher.Constraint("Symmetric", 24, 2, 35, 2, -2))
sketch2.addConstraint(Sketcher.Constraint("Symmetric", 23, 2, 36, 2, -2))
sketch2.addConstraint(Sketcher.Constraint("Symmetric", 20, 2, 39, 2, -2))
sketch2.addConstraint(Sketcher.Constraint("Symmetric", 19, 2, 40, 2, -2))
sketch2.addConstraint(Sketcher.Constraint("Symmetric", 16, 2, 43, 2, -2))
sketch2.addConstraint(Sketcher.Constraint("Symmetric", 7, 2, 28, 2, -1))
sketch2.addConstraint(Sketcher.Constraint("Perpendicular", 0, 1))
sketch2.addConstraint(Sketcher.Constraint("Parallel", 1, 3))
sketch2.addConstraint(Sketcher.Constraint("Perpendicular", 8, 9))
sketch2.addConstraint(Sketcher.Constraint("Parallel", 9, 11))
sketch2.addConstraint(Sketcher.Constraint("Perpendicular", 12, 13))
sketch2.addConstraint(Sketcher.Constraint("Parallel", 13, 15))
sketch2.addConstraint(Sketcher.Constraint("Equal", 3, 9))
sketch2.addConstraint(Sketcher.Constraint("Equal", 11, 13))
sketch2.addConstraint(Sketcher.Constraint("Radius", 2, 1.0))
sketch2.addConstraint(Sketcher.Constraint("DistanceX", -1, 1, 10, 2, 8.954998))
sketch2.addConstraint(Sketcher.Constraint("DistanceY", -1, 1, 12, 2, 3.868))
sketch2.addConstraint(Sketcher.Constraint("DistanceY", -1, 1, 6, 3, 10.656399))
sketch2.addConstraint(Sketcher.Constraint("DistanceY", -1, 1, 2, 2, 9.1672))
sketch2.addConstraint(Sketcher.Constraint("DistanceX", -1, 1, 13, 2, 10.1667))
sketch2.addConstraint(Sketcher.Constraint("DistanceY", -1, 1, 13, 2, 3.3462))
sketch2.addConstraint(Sketcher.Constraint("DistanceY", 5, 2, 5, 1, 2.344948))
sketch2.addConstraint(Sketcher.Constraint("DistanceX", -1, 1, 2, 3, 4.623638))
sketch2.addConstraint(Sketcher.Constraint("DistanceX", -1, 1, 10, 3, 8.331508))
sketch2.addConstraint(Sketcher.Constraint("DistanceX", -1, 1, 14, 3, 10.389221))
sketch2.addConstraint(Sketcher.Constraint("DistanceX", -1, 1, 1, 2, 3.722669))
sketch2.addConstraint(Sketcher.Constraint("DistanceY", -1, 1, 8, 2, 8.888039))
pocket1 = doc.addObject("PartDesign::Pocket", "Pocket")
body.addObject(pocket1)
pocket1.Profile = sketch2
pocket1.Length = 10

doc.recompute()
